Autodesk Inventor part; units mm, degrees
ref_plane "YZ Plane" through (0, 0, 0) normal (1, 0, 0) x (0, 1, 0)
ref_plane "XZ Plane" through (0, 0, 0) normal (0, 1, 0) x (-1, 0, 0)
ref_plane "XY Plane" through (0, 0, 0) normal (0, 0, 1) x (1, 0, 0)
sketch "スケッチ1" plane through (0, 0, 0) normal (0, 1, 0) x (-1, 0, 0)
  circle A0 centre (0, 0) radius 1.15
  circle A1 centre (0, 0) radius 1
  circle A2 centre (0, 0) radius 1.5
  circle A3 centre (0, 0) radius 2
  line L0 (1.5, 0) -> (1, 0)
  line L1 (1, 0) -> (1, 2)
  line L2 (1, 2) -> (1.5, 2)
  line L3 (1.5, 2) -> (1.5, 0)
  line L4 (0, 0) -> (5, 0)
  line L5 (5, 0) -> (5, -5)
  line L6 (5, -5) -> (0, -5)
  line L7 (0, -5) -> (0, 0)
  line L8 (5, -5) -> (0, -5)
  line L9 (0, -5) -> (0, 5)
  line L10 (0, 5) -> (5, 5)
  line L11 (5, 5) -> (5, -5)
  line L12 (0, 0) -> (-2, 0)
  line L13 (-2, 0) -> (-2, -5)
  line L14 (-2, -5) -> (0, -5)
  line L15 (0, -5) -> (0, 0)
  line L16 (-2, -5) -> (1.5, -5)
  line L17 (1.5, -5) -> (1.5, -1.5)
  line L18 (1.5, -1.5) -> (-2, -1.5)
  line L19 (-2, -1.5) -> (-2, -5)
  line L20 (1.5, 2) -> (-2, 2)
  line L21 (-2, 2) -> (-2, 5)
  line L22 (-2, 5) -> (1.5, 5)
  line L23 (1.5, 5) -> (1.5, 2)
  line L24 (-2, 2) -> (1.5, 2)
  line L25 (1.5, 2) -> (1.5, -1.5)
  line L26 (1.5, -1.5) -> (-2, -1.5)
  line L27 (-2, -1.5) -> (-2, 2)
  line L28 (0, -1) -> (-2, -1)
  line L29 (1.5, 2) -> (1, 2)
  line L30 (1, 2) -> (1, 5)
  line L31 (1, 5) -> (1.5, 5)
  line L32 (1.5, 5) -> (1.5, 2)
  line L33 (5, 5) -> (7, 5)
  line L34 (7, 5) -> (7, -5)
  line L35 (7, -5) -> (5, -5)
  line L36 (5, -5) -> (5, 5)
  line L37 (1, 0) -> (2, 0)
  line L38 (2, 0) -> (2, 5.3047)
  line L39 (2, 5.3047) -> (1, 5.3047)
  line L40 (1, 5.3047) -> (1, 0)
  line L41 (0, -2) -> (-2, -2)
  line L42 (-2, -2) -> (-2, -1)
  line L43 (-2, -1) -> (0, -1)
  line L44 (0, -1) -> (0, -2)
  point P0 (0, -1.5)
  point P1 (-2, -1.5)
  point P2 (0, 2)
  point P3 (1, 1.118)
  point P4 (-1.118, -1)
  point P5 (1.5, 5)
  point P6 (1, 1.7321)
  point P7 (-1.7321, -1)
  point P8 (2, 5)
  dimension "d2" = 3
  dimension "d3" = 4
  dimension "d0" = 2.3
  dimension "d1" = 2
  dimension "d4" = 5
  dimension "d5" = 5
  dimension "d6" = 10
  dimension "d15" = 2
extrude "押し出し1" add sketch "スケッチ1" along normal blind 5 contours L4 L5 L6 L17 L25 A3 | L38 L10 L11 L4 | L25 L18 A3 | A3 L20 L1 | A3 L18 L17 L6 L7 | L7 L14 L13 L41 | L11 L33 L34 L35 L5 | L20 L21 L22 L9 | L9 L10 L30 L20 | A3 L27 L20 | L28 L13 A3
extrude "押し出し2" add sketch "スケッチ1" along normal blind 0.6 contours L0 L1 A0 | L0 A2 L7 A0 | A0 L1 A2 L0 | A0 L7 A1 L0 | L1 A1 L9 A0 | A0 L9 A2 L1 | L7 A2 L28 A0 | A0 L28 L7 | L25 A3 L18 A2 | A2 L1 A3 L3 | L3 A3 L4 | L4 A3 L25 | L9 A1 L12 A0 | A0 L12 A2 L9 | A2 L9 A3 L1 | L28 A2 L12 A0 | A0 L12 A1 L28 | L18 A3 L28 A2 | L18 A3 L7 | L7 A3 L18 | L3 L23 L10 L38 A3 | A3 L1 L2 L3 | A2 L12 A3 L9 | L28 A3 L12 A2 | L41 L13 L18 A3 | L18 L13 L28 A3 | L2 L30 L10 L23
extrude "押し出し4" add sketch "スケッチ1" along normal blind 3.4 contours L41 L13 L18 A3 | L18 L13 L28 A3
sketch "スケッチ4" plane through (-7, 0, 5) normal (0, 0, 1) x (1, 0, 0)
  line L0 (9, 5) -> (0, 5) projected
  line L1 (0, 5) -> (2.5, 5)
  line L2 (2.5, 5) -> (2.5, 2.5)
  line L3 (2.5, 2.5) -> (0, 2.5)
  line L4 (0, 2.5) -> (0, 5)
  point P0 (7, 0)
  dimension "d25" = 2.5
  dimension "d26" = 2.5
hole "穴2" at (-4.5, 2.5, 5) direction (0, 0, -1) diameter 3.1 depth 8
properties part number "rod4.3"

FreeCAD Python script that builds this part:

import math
import FreeCAD as App
import Part
import Sketcher
from FreeCAD import Vector
Q = App.Units.Quantity

doc = App.newDocument("Part")
params = doc.addObject("Spreadsheet::Sheet", "Params")
for row, (alias, value) in enumerate([
    ("sketch1_radius", "2 mm"),
    ("sketch1_width", "5 mm"),
    ("sketch1_height", "1 mm"),
    ("pad1_length", "5 mm"),
    ("sketch2_diameter", "2 mm"),
    ("sketch2_radius", "2 mm"),
    ("sketch2_width", "2 mm"),
    ("sketch2_height", "5 mm"),
    ("pad2_length", "0.6 mm"),
    ("sketch3_radius", "2 mm"),
    ("sketch3_width", "2 mm"),
    ("sketch3_height", "1 mm"),
    ("pad3_length", "3.4 mm"),
    ("sketch4_diameter", "3.1 mm"),
    ("hole_diameter", "3.1 mm"),
    ("hole_depth", "8 mm"),
], start=1):
    params.set(f"A{row}", alias)
    params.set(f"B{row}", "=" + value)
    params.setAlias(f"B{row}", alias)

body = doc.addObject("PartDesign::Body", "Body")
body.AllowCompound = True

# Sketch on XZ plane
sketch1 = body.newObject("Sketcher::SketchObject", "Sketch")
sketch1.AttachmentSupport = (doc.getObject("XZ_Plane"), [""])
sketch1.MapMode = "FlatFace"
sketch1.addGeometry(Part.LineSegment(Vector(-7, -5, 0), Vector(-7, 5, 0)), False)
sketch1.addGeometry(Part.LineSegment(Vector(-7, 5, 0), Vector(-2, 5, 0)), False)
sketch1.addGeometry(Part.LineSegment(Vector(-2, 5, 0), Vector(-2, 0, 0)), False)
sketch1.addGeometry(Part.ArcOfCircle(Part.Circle(Vector(0, 0, 0), Vector(0, 0, 1), 2), math.radians(180), math.radians(270)), False)
sketch1.addGeometry(Part.LineSegment(Vector(0, -2, 0), Vector(2, -2, 0)), False)
sketch1.addGeometry(Part.LineSegment(Vector(2, -2, 0), Vector(2, -5, 0)), False)
sketch1.addGeometry(Part.LineSegment(Vector(2, -5, 0), Vector(-7, -5, 0)), False)
sketch1.addGeometry(Part.LineSegment(Vector(-1, 1.732051, 0), Vector(-1, 5, 0)), False)
sketch1.addGeometry(Part.LineSegment(Vector(-1, 5, 0), Vector(2, 5, 0)), False)
sketch1.addGeometry(Part.LineSegment(Vector(2, 5, 0), Vector(2, 0, 0)), False)
sketch1.addGeometry(Part.ArcOfCircle(Part.Circle(Vector(0, 0, 0), Vector(0, 0, 1), 2), math.radians(0), math.radians(120)), False)
sketch1.addGeometry(Part.LineSegment(Vector(2, -1, 0), Vector(1.732051, -1, 0)), False)
sketch1.addGeometry(Part.ArcOfCircle(Part.Circle(Vector(0, 0, 0), Vector(0, 0, 1), 2), math.radians(-30), math.radians(0)), False)
sketch1.addGeometry(Part.LineSegment(Vector(2, 0, 0), Vector(2, -1, 0)), False)
sketch1.addConstraint(Sketcher.Constraint("Coincident", 0, 2, 1, 1))
sketch1.addConstraint(Sketcher.Constraint("Coincident", 1, 2, 2, 1))
sketch1.addConstraint(Sketcher.Constraint("Tangent", 2, 2, 3, 1))
sketch1.addConstraint(Sketcher.Constraint("Tangent", 3, 2, 4, 1))
sketch1.addConstraint(Sketcher.Constraint("Coincident", 4, 2, 5, 1))
sketch1.addConstraint(Sketcher.Constraint("Coincident", 5, 2, 6, 1))
sketch1.addConstraint(Sketcher.Constraint("Coincident", 6, 2, 0, 1))
sketch1.addConstraint(Sketcher.Constraint("Coincident", 7, 2, 8, 1))
sketch1.addConstraint(Sketcher.Constraint("Coincident", 8, 2, 9, 1))
sketch1.addConstraint(Sketcher.Constraint("Tangent", 9, 2, 10, 1))
sketch1.addConstraint(Sketcher.Constraint("Coincident", 10, 2, 7, 1))
sketch1.addConstraint(Sketcher.Constraint("Coincident", 11, 2, 12, 1))
sketch1.addConstraint(Sketcher.Constraint("Tangent", 12, 2, 13, 1))
sketch1.addConstraint(Sketcher.Constraint("Coincident", 13, 2, 11, 1))
sketch1.addConstraint(Sketcher.Constraint("Vertical", 0))
sketch1.addConstraint(Sketcher.Constraint("Horizontal", 1))
sketch1.addConstraint(Sketcher.Constraint("Vertical", 2))
sketch1.addConstraint(Sketcher.Constraint("Horizontal", 4))
sketch1.addConstraint(Sketcher.Constraint("Vertical", 5))
sketch1.addConstraint(Sketcher.Constraint("Horizontal", 6))
sketch1.addConstraint(Sketcher.Constraint("Vertical", 7))
sketch1.addConstraint(Sketcher.Constraint("Horizontal", 8))
sketch1.addConstraint(Sketcher.Constraint("Vertical", 9))
sketch1.addConstraint(Sketcher.Constraint("Horizontal", 11))
sketch1.addConstraint(Sketcher.Constraint("Vertical", 13))
sketch1.addConstraint(Sketcher.Constraint("Coincident", 3, 3, -1, 1))
sketch1.addConstraint(Sketcher.Constraint("Coincident", 10, 3, -1, 1))
sketch1.addConstraint(Sketcher.Constraint("Coincident", 12, 3, -1, 1))
sketch1.addConstraint(Sketcher.Constraint("Equal", 3, 10))
sketch1.addConstraint(Sketcher.Constraint("Equal", 10, 12))
sketch1.addConstraint(Sketcher.Constraint("Symmetric", 1, 2, 5, 2, -1, 1))
sketch1.addConstraint(Sketcher.Constraint("Horizontal", 1, 2, 7, 2))
sketch1.addConstraint(Sketcher.Constraint("Equal", 1, 2))
sketch1.addConstraint(Sketcher.Constraint("Equal", 8, 5))
sketch1.addConstraint(Sketcher.Constraint("Radius", 3, Q("2 mm")))
sketch1.addConstraint(Sketcher.Constraint("DistanceX", 1, 1, 1, 2, Q("5 mm")))
sketch1.addConstraint(Sketcher.Constraint("DistanceY", 13, 2, 13, 1, Q("1 mm")))
sketch1.setExpression("Constraints[34]", "Params.sketch1_radius")
sketch1.setExpression("Constraints[35]", "Params.sketch1_width")
sketch1.setExpression("Constraints[36]", "Params.sketch1_height")
pad1 = body.newObject("PartDesign::Pad", "Pad")
pad1.Profile = sketch1
pad1.setExpression("Length", "Params.pad1_length")
pad1.Reversed = True

# Sketch on XZ plane
sketch2 = body.newObject("Sketcher::SketchObject", "Sketch001")
sketch2.AttachmentSupport = (doc.getObject("XZ_Plane"), [""])
sketch2.MapMode = "FlatFace"
sketch2.addGeometry(Part.LineSegment(Vector(-2, 0, 0), Vector(-2, 5, 0)), False)
sketch2.addGeometry(Part.LineSegment(Vector(-2, 5, 0), Vector(-1, 5, 0)), False)
sketch2.addGeometry(Part.LineSegment(Vector(-1, 5, 0), Vector(-1, 1.732051, 0)), False)
sketch2.addGeometry(Part.ArcOfCircle(Part.Circle(Vector(0, 0, 0), Vector(0, 0, 1), 2), math.radians(-30), math.radians(120)), False)
sketch2.addGeometry(Part.LineSegment(Vector(1.732051, -1, 0), Vector(2, -1, 0)), False)
sketch2.addGeometry(Part.LineSegment(Vector(2, -1, 0), Vector(2, -2, 0)), False)
sketch2.addGeometry(Part.LineSegment(Vector(2, -2, 0), Vector(0, -2, 0)), False)
sketch2.addGeometry(Part.ArcOfCircle(Part.Circle(Vector(0, 0, 0), Vector(0, 0, 1), 2), math.radians(180), math.radians(270)), False)
sketch2.addGeometry(Part.Circle(Vector(0, 0, 0), Vector(0, 0, 1), 1), False)
sketch2.addConstraint(Sketcher.Constraint("Coincident", 0, 2, 1, 1))
sketch2.addConstraint(Sketcher.Constraint("Coincident", 1, 2, 2, 1))
sketch2.addConstraint(Sketcher.Constraint("Coincident", 2, 2, 3, 2))
sketch2.addConstraint(Sketcher.Constraint("Coincident", 3, 1, 4, 1))
sketch2.addConstraint(Sketcher.Constraint("Coincident", 4, 2, 5, 1))
sketch2.addConstraint(Sketcher.Constraint("Coincident", 5, 2, 6, 1))
sketch2.addConstraint(Sketcher.Constraint("Tangent", 6, 2, 7, 2))
sketch2.addConstraint(Sketcher.Constraint("Tangent", 7, 1, 0, 1))
sketch2.addConstraint(Sketcher.Constraint("Vertical", 0))
sketch2.addConstraint(Sketcher.Constraint("Horizontal", 1))
sketch2.addConstraint(Sketcher.Constraint("Vertical", 2))
sketch2.addConstraint(Sketcher.Constraint("Horizontal", 4))
sketch2.addConstraint(Sketcher.Constraint("Vertical", 5))
sketch2.addConstraint(Sketcher.Constraint("Horizontal", 6))
sketch2.addConstraint(Sketcher.Constraint("Coincident", 3, 3, -1, 1))
sketch2.addConstraint(Sketcher.Constraint("Coincident", 7, 3, -1, 1))
sketch2.addConstraint(Sketcher.Constraint("Coincident", 8, 3, -1, 1))
sketch2.addConstraint(Sketcher.Constraint("Equal", 3, 7))
sketch2.addConstraint(Sketcher.Constraint("Equal", 1, 5))
sketch2.addConstraint(Sketcher.Constraint("Diameter", 8, Q("2 mm")))
sketch2.addConstraint(Sketcher.Constraint("Radius", 3, Q("2 mm")))
sketch2.addConstraint(Sketcher.Constraint("DistanceX", 6, 2, 6, 1, Q("2 mm")))
sketch2.addConstraint(Sketcher.Constraint("DistanceY", 0, 1, 0, 2, Q("5 mm")))
sketch2.addConstraint(Sketcher.Constraint("DistanceX", 2, 2, 4, 2, Q("3 mm")))
sketch2.setExpression("Constraints[19]", "Params.sketch2_diameter")
sketch2.setExpression("Constraints[20]", "Params.sketch2_radius")
sketch2.setExpression("Constraints[21]", "Params.sketch2_width")
sketch2.setExpression("Constraints[22]", "Params.sketch2_height")
pad2 = body.newObject("PartDesign::Pad", "Pad001")
pad2.Profile = sketch2
pad2.setExpression("Length", "Params.pad2_length")
pad2.Reversed = True

# Sketch on XZ plane
sketch3 = body.newObject("Sketcher::SketchObject", "Sketch002")
sketch3.AttachmentSupport = (doc.getObject("XZ_Plane"), [""])
sketch3.MapMode = "FlatFace"
sketch3.addGeometry(Part.LineSegment(Vector(2, -2, 0), Vector(0, -2, 0)), False)
sketch3.addGeometry(Part.ArcOfCircle(Part.Circle(Vector(0, 0, 0), Vector(0, 0, 1), 2), math.radians(-90), math.radians(-30)), False)
sketch3.addGeometry(Part.LineSegment(Vector(1.732051, -1, 0), Vector(2, -1, 0)), False)
sketch3.addGeometry(Part.LineSegment(Vector(2, -1, 0), Vector(2, -2, 0)), False)
sketch3.addConstraint(Sketcher.Constraint("Tangent", 0, 2, 1, 1))
sketch3.addConstraint(Sketcher.Constraint("Coincident", 1, 2, 2, 1))
sketch3.addConstraint(Sketcher.Constraint("Coincident", 2, 2, 3, 1))
sketch3.addConstraint(Sketcher.Constraint("Coincident", 3, 2, 0, 1))
sketch3.addConstraint(Sketcher.Constraint("Horizontal", 0))
sketch3.addConstraint(Sketcher.Constraint("Horizontal", 2))
sketch3.addConstraint(Sketcher.Constraint("Vertical", 3))
sketch3.addConstraint(Sketcher.Constraint("Coincident", 1, 3, -1, 1))
sketch3.addConstraint(Sketcher.Constraint("Radius", 1, Q("2 mm")))
sketch3.addConstraint(Sketcher.Constraint("DistanceX", 0, 2, 0, 1, Q("2 mm")))
sketch3.addConstraint(Sketcher.Constraint("DistanceY", 3, 2, 3, 1, Q("1 mm")))
sketch3.setExpression("Constraints[8]", "Params.sketch3_radius")
sketch3.setExpression("Constraints[9]", "Params.sketch3_width")
sketch3.setExpression("Constraints[10]", "Params.sketch3_height")
pad3 = body.newObject("PartDesign::Pad", "Pad002")
pad3.Profile = sketch3
pad3.setExpression("Length", "Params.pad3_length")
pad3.Reversed = True

# Sketch on XY plane
sketch4 = body.newObject("Sketcher::SketchObject", "Sketch003")
sketch4.AttachmentSupport = (doc.getObject("XY_Plane"), [""])
sketch4.MapMode = "FlatFace"
sketch4.AttachmentOffset = App.Placement(Vector(0, 0, 5), App.Rotation())
sketch4.addGeometry(Part.Circle(Vector(-4.5, 2.5, 0), Vector(0, 0, 1), 1.55), False)
sketch4.addConstraint(Sketcher.Constraint("Diameter", 0, Q("3.1 mm")))
sketch4.addConstraint(Sketcher.Constraint("DistanceX", 0, 3, -1, 1, Q("4.5 mm")))
sketch4.addConstraint(Sketcher.Constraint("DistanceY", -1, 1, 0, 3, Q("2.5 mm")))
sketch4.setExpression("Constraints[0]", "Params.sketch4_diameter")
doc.recompute()
hole = body.newObject("PartDesign::Hole", "Hole")
hole.Profile = sketch4
hole.ThreadType = "None"
hole.setExpression("Diameter", "Params.hole_diameter")
hole.DepthType = "Dimension"
hole.setExpression("Depth", "Params.hole_depth")
hole.DrillPoint = "Flat"

doc.recompute()
